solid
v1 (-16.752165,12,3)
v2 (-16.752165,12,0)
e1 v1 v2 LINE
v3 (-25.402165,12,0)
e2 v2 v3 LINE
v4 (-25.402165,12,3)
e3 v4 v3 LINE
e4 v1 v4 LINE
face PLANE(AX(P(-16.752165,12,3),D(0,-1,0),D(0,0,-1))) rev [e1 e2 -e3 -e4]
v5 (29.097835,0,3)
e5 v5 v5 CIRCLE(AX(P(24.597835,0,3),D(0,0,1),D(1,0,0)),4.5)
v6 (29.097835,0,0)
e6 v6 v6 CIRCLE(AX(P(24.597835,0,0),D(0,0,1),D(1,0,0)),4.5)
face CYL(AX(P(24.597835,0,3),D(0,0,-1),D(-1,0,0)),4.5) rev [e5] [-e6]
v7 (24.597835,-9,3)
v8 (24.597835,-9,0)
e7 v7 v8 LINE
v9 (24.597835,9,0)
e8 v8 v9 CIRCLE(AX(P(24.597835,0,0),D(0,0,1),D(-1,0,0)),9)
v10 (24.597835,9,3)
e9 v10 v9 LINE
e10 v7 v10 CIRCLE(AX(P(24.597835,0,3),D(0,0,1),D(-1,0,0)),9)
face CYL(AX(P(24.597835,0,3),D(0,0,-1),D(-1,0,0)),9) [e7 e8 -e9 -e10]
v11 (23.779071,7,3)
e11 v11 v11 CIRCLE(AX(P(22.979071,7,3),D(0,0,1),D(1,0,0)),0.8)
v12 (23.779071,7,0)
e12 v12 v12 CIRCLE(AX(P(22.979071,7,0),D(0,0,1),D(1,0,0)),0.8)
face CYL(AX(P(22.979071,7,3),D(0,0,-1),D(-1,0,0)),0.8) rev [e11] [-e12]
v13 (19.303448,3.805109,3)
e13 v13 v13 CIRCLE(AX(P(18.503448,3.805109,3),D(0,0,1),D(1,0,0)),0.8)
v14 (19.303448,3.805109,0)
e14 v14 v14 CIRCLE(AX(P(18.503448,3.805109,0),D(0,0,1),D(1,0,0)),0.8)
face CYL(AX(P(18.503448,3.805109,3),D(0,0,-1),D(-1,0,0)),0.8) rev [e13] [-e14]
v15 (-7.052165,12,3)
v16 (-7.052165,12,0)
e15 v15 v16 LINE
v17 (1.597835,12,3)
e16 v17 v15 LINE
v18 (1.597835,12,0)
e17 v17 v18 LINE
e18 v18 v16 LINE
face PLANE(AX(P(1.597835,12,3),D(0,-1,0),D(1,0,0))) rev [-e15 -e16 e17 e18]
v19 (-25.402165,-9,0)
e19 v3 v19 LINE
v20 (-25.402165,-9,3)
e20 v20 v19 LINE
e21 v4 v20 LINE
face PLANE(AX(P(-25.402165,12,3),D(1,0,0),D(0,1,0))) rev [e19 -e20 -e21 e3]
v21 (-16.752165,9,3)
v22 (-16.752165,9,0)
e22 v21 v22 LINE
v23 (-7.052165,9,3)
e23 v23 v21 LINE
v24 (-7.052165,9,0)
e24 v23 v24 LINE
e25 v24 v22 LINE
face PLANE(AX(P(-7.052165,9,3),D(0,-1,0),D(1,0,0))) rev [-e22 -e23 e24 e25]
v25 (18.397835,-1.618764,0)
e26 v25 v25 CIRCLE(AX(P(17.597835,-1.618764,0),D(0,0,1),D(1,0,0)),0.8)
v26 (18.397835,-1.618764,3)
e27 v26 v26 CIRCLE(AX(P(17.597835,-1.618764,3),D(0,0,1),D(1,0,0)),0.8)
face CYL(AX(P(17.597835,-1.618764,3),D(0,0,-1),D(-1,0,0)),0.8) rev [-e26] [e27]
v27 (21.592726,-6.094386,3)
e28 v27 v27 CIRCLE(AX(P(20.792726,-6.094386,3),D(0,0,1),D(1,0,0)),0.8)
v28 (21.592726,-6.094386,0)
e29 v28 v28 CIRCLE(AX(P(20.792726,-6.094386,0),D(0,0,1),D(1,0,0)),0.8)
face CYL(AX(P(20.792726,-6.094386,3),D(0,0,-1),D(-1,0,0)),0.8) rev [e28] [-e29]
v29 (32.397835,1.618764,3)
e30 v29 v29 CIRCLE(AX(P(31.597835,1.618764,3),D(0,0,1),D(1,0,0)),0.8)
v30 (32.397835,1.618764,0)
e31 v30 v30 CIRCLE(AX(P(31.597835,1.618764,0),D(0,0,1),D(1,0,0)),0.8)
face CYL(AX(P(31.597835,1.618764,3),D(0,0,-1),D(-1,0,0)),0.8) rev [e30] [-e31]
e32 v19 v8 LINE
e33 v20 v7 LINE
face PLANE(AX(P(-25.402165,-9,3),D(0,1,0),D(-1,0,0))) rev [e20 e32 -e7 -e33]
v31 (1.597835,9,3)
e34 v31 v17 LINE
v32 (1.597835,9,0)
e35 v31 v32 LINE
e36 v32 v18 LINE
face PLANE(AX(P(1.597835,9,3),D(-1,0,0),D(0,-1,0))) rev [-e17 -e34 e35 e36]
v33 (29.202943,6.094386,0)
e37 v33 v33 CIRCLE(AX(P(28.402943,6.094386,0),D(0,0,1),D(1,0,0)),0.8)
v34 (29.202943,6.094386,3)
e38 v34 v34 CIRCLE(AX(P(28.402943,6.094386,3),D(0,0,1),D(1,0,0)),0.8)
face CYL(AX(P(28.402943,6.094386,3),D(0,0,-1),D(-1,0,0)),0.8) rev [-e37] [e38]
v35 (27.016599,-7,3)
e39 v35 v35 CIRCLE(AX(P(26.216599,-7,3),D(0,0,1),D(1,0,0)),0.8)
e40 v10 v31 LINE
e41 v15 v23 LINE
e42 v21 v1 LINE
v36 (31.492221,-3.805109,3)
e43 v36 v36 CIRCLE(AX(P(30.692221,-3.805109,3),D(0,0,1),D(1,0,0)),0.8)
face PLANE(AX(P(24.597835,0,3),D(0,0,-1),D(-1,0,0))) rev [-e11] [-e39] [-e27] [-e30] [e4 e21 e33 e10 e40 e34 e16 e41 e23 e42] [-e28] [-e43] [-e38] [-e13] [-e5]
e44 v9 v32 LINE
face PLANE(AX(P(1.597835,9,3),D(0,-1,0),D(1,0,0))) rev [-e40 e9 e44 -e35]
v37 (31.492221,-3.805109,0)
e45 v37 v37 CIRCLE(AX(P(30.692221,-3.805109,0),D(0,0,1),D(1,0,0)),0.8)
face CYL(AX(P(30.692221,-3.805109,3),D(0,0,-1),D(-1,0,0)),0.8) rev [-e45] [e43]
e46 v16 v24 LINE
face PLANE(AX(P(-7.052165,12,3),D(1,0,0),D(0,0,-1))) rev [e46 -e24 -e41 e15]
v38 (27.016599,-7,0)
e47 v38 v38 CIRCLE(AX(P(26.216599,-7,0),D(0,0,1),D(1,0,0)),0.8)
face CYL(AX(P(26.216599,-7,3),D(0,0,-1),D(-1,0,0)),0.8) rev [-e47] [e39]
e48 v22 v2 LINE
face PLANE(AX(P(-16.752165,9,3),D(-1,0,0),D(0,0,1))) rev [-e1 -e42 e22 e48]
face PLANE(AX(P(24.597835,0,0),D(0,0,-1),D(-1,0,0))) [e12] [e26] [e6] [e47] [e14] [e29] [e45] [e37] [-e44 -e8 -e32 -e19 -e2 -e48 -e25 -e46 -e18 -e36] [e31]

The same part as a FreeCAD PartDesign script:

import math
import FreeCAD as App
import Part
import Sketcher

V = App.Vector
Q = App.Units.Quantity

doc = App.newDocument("Part")
body = doc.addObject("PartDesign::Body", "Body")

sketch1 = body.newObject("Sketcher::SketchObject", "Sketch")
sketch1.AttachmentSupport = (doc.getObject("XY_Plane"), [""])
sketch1.MapMode = "FlatFace"
sketch1.addGeometry(Part.LineSegment(V(24.597835, 9, 0), V(1.597835, 9, 0)), False)
sketch1.addGeometry(Part.LineSegment(V(1.597835, 9, 0), V(1.597835, 12, 0)), False)
sketch1.addGeometry(Part.LineSegment(V(1.597835, 12, 0), V(-7.052165, 12, 0)), False)
sketch1.addGeometry(Part.LineSegment(V(-7.052165, 12, 0), V(-7.052165, 9, 0)), False)
sketch1.addGeometry(Part.LineSegment(V(-7.052165, 9, 0), V(-16.752165, 9, 0)), False)
sketch1.addGeometry(Part.LineSegment(V(-16.752165, 9, 0), V(-16.752165, 12, 0)), False)
sketch1.addGeometry(Part.LineSegment(V(-16.752165, 12, 0), V(-25.402165, 12, 0)), False)
sketch1.addGeometry(Part.LineSegment(V(-25.402165, 12, 0), V(-25.402165, -9, 0)), False)
sketch1.addGeometry(Part.LineSegment(V(-25.402165, -9, 0), V(24.597835, -9, 0)), False)
sketch1.addGeometry(Part.ArcOfCircle(Part.Circle(V(24.597835, 0, 0), V(0, 0, 1), 9), math.radians(-90), math.radians(90)), False)
sketch1.addGeometry(Part.Circle(V(26.216599, -7, 0), V(0, 0, 1), 0.8), False)
sketch1.addGeometry(Part.Circle(V(30.692221, -3.805109, 0), V(0, 0, 1), 0.8), False)
sketch1.addGeometry(Part.Circle(V(20.792726, -6.094386, 0), V(0, 0, 1), 0.8), False)
sketch1.addGeometry(Part.Circle(V(17.597835, -1.618764, 0), V(0, 0, 1), 0.8), False)
sketch1.addGeometry(Part.Circle(V(31.597835, 1.618764, 0), V(0, 0, 1), 0.8), False)
sketch1.addGeometry(Part.Circle(V(24.597835, 0, 0), V(0, 0, 1), 4.5), False)
sketch1.addGeometry(Part.Circle(V(28.402943, 6.094386, 0), V(0, 0, 1), 0.8), False)
sketch1.addGeometry(Part.Circle(V(18.503448, 3.805109, 0), V(0, 0, 1), 0.8), False)
sketch1.addGeometry(Part.Circle(V(22.979071, 7, 0), V(0, 0, 1), 0.8), False)
sketch1.addConstraint(Sketcher.Constraint("Coincident", 0, 2, 1, 1))
sketch1.addConstraint(Sketcher.Constraint("Coincident", 1, 2, 2, 1))
sketch1.addConstraint(Sketcher.Constraint("Coincident", 2, 2, 3, 1))
sketch1.addConstraint(Sketcher.Constraint("Coincident", 3, 2, 4, 1))
sketch1.addConstraint(Sketcher.Constraint("Coincident", 4, 2, 5, 1))
sketch1.addConstraint(Sketcher.Constraint("Coincident", 5, 2, 6, 1))
sketch1.addConstraint(Sketcher.Constraint("Coincident", 6, 2, 7, 1))
sketch1.addConstraint(Sketcher.Constraint("Coincident", 7, 2, 8, 1))
sketch1.addConstraint(Sketcher.Constraint("Tangent", 8, 2, 9, 1))
sketch1.addConstraint(Sketcher.Constraint("Tangent", 9, 2, 0, 1))
sketch1.addConstraint(Sketcher.Constraint("Horizontal", 0))
sketch1.addConstraint(Sketcher.Constraint("Vertical", 1))
sketch1.addConstraint(Sketcher.Constraint("Horizontal", 2))
sketch1.addConstraint(Sketcher.Constraint("Vertical", 3))
sketch1.addConstraint(Sketcher.Constraint("Horizontal", 4))
sketch1.addConstraint(Sketcher.Constraint("Vertical", 5))
sketch1.addConstraint(Sketcher.Constraint("Horizontal", 6))
sketch1.addConstraint(Sketcher.Constraint("Vertical", 7))
sketch1.addConstraint(Sketcher.Constraint("Horizontal", 8))
sketch1.addConstraint(Sketcher.Constraint("Coincident", 15, 3, 9, 3))
sketch1.addConstraint(Sketcher.Constraint("Equal", 10, 11))
sketch1.addConstraint(Sketcher.Constraint("Equal", 11, 12))
sketch1.addConstraint(Sketcher.Constraint("Equal", 12, 13))
sketch1.addConstraint(Sketcher.Constraint("Equal", 13, 14))
sketch1.addConstraint(Sketcher.Constraint("Equal", 14, 16))
sketch1.addConstraint(Sketcher.Constraint("Equal", 16, 17))
sketch1.addConstraint(Sketcher.Constraint("Equal", 17, 18))
sketch1.addConstraint(Sketcher.Constraint("PointOnObject", 9, 3, -1))
sketch1.addConstraint(Sketcher.Constraint("Horizontal", 0, 2, 3, 2))
sketch1.addConstraint(Sketcher.Constraint("Horizontal", 2, 2, 5, 2))
sketch1.addConstraint(Sketcher.Constraint("Equal", 2, 6))
sketch1.addConstraint(Sketcher.Constraint("Diameter", 15, Q("9 mm")))
sketch1.addConstraint(Sketcher.Constraint("Radius", 9, Q("9 mm")))
sketch1.addConstraint(Sketcher.Constraint("Diameter", 10, Q("1.6 mm")))
sketch1.addConstraint(Sketcher.Constraint("DistanceX", 0, 2, 0, 1, Q("23 mm")))
sketch1.addConstraint(Sketcher.Constraint("DistanceX", 8, 1, 8, 2, Q("50 mm")))
sketch1.addConstraint(Sketcher.Constraint("DistanceY", 1, 1, 1, 2, Q("3 mm")))
sketch1.addConstraint(Sketcher.Constraint("DistanceX", 4, 2, 4, 1, Q("9.7 mm")))
sketch1.addConstraint(Sketcher.Constraint("DistanceY", 10, 3, -1, 1, Q("7 mm")))
sketch1.addConstraint(Sketcher.Constraint("DistanceY", -1, 1, 18, 3, Q("7 mm")))
sketch1.addConstraint(Sketcher.Constraint("DistanceX", 13, 3, 9, 3, Q("7 mm")))
sketch1.addConstraint(Sketcher.Constraint("DistanceX", 9, 3, 14, 3, Q("7 mm")))
sketch1.addConstraint(Sketcher.Constraint("DistanceX", -1, 1, 10, 3, Q("26.216599 mm")))
sketch1.addConstraint(Sketcher.Constraint("DistanceX", -1, 1, 11, 3, Q("30.692221 mm")))
sketch1.addConstraint(Sketcher.Constraint("DistanceY", 11, 3, -1, 1, Q("3.805109 mm")))
sketch1.addConstraint(Sketcher.Constraint("DistanceX", -1, 1, 17, 3, Q("18.503448 mm")))
sketch1.addConstraint(Sketcher.Constraint("DistanceY", -1, 1, 17, 3, Q("3.805109 mm")))
sketch1.addConstraint(Sketcher.Constraint("DistanceX", -1, 1, 18, 3, Q("22.979071 mm")))
sketch1.addConstraint(Sketcher.Constraint("DistanceX", 12, 3, 9, 3, Q("3.805109 mm")))
sketch1.addConstraint(Sketcher.Constraint("DistanceY", 12, 3, 14, 3, Q("7.71315 mm")))
sketch1.addConstraint(Sketcher.Constraint("DistanceX", 16, 3, 14, 3, Q("3.194891 mm")))
sketch1.addConstraint(Sketcher.Constraint("DistanceX", -1, 1, 9, 3, Q("24.597835 mm")))
sketch1.addConstraint(Sketcher.Constraint("DistanceY", 12, 3, -1, 1, Q("6.094386 mm")))
sketch1.addConstraint(Sketcher.Constraint("DistanceY", 13, 3, -1, 1, Q("1.618764 mm")))
sketch1.addConstraint(Sketcher.Constraint("DistanceY", -1, 1, 16, 3, Q("6.094386 mm")))
pad1 = body.newObject("PartDesign::Pad", "Pad")
pad1.Profile = sketch1
pad1.Length = 3

doc.recompute()
